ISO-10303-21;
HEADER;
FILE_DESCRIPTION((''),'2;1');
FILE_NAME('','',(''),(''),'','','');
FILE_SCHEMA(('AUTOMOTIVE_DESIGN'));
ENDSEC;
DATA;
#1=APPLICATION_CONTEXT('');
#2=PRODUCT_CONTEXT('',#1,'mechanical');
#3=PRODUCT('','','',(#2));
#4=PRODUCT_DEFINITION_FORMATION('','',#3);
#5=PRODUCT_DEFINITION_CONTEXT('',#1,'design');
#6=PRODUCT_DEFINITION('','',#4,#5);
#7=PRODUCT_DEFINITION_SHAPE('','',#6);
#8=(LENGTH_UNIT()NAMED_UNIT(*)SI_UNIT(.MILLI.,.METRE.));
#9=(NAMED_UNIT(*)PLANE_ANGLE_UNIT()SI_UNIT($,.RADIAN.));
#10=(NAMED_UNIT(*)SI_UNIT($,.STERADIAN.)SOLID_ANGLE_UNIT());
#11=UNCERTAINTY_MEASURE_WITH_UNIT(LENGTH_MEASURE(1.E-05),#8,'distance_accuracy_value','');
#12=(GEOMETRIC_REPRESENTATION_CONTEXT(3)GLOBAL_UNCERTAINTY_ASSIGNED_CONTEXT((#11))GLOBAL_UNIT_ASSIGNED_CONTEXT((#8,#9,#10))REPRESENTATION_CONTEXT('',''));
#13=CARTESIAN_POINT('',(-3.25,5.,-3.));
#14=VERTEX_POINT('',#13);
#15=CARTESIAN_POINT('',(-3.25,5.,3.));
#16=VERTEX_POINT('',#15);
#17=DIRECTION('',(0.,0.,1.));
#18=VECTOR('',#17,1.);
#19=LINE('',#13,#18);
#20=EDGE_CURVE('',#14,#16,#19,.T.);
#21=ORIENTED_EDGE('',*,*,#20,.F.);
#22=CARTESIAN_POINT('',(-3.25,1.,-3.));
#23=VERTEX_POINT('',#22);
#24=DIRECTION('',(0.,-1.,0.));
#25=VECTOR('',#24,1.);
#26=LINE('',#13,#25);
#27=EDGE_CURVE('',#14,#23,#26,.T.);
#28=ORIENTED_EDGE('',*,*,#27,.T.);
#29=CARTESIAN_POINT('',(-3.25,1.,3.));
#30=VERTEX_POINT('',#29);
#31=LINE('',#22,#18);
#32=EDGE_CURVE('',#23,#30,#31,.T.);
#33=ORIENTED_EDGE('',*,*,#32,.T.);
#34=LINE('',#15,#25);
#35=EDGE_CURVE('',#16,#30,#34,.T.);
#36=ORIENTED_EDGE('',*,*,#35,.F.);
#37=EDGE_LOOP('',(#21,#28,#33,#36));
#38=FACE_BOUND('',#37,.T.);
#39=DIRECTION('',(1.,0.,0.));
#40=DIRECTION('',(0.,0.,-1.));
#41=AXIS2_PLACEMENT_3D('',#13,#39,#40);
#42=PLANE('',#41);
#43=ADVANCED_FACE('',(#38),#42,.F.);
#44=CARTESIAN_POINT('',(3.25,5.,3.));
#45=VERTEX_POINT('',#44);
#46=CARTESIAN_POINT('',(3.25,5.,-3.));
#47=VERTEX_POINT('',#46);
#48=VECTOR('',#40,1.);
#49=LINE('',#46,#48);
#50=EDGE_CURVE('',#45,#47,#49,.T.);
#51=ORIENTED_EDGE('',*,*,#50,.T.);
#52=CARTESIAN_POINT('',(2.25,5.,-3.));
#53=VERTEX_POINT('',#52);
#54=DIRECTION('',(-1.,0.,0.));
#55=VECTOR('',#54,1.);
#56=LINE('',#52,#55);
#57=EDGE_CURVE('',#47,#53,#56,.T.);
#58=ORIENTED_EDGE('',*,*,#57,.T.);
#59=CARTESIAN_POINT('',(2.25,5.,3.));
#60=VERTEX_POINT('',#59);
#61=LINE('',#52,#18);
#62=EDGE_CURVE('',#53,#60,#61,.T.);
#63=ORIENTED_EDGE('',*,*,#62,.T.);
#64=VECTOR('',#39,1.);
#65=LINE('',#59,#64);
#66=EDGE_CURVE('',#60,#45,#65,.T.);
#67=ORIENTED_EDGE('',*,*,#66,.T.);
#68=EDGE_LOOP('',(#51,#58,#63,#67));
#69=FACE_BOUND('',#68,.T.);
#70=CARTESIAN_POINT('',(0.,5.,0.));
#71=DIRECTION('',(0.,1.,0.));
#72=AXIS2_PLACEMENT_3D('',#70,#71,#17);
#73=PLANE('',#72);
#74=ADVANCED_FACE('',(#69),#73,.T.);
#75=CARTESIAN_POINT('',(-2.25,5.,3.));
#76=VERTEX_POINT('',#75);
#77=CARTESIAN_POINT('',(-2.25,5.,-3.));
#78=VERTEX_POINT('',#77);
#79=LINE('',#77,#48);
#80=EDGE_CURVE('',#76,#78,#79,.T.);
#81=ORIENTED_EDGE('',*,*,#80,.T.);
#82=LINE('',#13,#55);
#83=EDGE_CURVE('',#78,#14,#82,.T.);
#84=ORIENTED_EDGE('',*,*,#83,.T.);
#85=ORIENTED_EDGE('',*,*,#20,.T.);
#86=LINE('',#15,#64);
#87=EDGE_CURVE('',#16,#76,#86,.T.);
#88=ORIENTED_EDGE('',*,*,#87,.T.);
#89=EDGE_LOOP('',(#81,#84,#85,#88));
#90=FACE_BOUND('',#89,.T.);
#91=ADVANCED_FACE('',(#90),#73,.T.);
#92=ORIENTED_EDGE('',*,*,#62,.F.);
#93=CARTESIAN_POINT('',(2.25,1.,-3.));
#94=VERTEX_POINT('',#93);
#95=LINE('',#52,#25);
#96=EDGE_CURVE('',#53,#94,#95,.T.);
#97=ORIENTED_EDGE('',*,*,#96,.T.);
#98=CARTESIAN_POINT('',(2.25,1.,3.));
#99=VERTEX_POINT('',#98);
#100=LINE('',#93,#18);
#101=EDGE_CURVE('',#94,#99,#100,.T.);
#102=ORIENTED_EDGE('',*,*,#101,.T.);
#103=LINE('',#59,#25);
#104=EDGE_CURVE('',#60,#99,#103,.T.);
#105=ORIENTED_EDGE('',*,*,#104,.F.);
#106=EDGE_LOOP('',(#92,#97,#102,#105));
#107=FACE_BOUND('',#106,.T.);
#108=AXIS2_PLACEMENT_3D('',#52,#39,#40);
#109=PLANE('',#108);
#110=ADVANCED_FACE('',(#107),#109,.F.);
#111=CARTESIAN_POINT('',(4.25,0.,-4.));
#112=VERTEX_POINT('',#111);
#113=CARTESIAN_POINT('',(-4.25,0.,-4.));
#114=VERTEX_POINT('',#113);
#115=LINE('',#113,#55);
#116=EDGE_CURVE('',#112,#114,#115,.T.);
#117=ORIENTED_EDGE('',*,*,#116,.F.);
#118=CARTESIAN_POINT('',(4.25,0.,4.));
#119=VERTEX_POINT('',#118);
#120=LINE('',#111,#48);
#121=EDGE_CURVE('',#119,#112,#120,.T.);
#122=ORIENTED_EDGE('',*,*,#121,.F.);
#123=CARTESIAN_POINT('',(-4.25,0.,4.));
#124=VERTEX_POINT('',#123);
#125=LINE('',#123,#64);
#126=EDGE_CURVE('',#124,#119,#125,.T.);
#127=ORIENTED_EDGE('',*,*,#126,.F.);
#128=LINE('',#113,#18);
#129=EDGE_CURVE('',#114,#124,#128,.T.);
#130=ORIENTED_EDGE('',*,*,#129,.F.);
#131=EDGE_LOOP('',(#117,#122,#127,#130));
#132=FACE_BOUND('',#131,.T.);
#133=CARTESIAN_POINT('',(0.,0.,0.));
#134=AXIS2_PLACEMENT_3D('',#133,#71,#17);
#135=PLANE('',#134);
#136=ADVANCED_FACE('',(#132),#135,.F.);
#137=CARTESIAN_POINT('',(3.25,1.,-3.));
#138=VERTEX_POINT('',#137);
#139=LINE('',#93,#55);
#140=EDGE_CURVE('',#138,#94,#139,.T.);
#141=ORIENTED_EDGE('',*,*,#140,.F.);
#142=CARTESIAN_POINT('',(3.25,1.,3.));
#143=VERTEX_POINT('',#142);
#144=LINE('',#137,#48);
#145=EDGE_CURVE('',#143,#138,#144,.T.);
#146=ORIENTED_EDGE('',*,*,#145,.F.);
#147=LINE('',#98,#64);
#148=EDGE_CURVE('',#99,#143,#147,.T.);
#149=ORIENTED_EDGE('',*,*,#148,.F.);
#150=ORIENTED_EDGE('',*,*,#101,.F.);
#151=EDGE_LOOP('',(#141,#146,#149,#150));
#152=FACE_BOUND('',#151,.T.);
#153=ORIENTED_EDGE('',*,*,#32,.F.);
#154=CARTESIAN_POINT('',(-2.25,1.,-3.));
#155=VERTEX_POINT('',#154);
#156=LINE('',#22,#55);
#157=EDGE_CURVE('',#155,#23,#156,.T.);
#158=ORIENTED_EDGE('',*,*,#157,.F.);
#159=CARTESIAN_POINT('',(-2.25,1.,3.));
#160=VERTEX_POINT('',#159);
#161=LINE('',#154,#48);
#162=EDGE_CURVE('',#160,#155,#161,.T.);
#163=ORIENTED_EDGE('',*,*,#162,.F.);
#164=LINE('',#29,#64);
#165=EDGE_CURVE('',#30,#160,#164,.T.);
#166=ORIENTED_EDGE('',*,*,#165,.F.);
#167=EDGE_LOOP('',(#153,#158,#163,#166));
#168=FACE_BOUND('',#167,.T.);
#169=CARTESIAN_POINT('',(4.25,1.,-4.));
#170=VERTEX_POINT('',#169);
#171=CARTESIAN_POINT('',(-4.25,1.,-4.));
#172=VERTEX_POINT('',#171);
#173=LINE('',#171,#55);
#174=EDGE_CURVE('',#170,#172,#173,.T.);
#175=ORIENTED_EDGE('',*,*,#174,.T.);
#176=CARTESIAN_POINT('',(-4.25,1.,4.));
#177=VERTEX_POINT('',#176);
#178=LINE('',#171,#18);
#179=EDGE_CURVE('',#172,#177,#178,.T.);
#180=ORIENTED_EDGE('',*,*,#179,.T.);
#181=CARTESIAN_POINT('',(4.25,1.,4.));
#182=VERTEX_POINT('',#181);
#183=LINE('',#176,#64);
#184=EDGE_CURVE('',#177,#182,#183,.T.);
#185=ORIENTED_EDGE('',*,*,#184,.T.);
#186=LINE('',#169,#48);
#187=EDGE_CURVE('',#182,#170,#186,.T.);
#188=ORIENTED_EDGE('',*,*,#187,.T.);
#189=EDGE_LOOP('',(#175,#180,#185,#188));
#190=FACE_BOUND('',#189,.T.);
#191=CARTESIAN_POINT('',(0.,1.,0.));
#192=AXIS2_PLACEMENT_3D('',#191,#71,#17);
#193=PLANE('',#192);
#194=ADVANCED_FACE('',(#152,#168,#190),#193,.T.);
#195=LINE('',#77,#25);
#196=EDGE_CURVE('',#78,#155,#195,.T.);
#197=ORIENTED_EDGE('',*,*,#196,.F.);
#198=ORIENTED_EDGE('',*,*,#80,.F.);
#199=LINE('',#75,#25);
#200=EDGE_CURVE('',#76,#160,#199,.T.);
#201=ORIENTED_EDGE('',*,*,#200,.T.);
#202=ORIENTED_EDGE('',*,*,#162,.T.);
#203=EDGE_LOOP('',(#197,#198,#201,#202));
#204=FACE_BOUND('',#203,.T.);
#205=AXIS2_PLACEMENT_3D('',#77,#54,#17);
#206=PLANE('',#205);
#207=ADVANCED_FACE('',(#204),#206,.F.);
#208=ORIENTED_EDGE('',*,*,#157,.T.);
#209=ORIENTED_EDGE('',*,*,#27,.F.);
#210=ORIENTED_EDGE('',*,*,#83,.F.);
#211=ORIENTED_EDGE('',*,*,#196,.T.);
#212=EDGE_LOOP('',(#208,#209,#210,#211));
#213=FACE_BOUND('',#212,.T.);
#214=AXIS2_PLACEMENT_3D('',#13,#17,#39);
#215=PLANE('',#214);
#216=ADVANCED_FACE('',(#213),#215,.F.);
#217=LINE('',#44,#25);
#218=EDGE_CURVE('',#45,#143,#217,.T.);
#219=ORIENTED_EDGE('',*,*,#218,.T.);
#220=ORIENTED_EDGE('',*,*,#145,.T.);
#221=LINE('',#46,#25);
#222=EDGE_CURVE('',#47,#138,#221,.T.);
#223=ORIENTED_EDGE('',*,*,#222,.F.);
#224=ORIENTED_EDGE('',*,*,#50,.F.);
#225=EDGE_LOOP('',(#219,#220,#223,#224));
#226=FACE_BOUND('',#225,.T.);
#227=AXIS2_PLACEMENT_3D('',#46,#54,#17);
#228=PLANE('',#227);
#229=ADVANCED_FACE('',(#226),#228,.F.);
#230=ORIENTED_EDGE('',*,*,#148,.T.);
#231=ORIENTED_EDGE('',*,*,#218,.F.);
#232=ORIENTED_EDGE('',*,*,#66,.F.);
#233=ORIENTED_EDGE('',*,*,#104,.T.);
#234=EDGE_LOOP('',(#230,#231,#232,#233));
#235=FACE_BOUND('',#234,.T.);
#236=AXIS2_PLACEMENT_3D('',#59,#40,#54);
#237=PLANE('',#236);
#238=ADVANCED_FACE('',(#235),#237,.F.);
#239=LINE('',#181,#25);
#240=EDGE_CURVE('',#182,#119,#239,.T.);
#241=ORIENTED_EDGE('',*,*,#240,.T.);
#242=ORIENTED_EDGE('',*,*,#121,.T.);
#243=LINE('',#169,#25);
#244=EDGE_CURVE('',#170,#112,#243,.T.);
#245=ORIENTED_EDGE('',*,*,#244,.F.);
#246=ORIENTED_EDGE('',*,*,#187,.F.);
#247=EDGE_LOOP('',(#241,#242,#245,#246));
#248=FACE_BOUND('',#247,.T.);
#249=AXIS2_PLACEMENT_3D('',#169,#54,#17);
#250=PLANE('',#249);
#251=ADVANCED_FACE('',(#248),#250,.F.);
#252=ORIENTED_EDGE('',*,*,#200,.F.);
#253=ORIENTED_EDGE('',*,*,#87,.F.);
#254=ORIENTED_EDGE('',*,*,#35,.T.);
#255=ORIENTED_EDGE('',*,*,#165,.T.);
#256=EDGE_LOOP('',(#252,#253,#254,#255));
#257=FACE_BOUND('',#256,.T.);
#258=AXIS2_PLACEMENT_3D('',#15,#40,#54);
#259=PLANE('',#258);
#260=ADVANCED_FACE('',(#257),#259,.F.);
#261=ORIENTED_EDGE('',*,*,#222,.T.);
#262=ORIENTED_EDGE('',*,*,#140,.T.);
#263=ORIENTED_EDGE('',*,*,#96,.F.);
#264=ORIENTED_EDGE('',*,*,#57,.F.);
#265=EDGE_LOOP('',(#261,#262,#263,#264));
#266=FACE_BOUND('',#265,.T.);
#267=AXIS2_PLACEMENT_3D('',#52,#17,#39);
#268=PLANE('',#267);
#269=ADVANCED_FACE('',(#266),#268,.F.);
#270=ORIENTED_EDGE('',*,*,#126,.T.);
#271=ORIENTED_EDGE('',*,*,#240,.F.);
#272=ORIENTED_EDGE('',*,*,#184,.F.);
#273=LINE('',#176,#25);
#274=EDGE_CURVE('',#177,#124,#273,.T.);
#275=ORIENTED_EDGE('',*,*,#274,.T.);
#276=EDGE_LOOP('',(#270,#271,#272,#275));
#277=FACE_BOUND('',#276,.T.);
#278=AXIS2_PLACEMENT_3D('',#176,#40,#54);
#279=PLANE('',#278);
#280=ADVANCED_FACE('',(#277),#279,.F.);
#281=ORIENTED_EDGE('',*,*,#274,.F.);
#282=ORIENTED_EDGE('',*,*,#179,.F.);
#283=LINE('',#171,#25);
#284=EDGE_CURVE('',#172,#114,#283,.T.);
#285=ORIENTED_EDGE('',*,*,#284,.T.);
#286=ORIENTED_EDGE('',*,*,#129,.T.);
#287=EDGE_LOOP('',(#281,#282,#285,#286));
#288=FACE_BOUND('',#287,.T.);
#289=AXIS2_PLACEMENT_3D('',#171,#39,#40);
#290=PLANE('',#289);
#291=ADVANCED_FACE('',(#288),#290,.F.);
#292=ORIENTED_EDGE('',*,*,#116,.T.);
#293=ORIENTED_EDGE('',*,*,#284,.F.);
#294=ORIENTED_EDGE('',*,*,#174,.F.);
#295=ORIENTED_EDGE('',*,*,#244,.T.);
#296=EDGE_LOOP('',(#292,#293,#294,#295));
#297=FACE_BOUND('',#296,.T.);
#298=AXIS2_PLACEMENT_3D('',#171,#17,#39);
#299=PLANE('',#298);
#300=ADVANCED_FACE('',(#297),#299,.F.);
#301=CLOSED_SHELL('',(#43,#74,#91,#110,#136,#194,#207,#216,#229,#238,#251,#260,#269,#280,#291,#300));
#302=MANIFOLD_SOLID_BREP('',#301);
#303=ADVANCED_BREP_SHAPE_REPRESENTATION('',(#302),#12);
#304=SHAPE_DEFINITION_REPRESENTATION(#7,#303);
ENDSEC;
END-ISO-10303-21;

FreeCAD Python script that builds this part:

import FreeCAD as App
import Part
import Sketcher

V = App.Vector
Q = App.Units.Quantity

doc = App.newDocument("Part")
body = doc.addObject("PartDesign::Body", "Body")

# Sketch on XZ plane
sketch1 = doc.addObject("Sketcher::SketchObject", "Sketch")
body.addObject(sketch1)
sketch1.AttachmentSupport = (doc.XZ_Plane, [""])
sketch1.MapMode = "FlatFace"
sketch1.addGeometry(Part.LineSegment(V(-4, -4, 0), V(-4, 4, 0)), False)
sketch1.addGeometry(Part.LineSegment(V(-4, 4, 0), V(4, 4, 0)), False)
sketch1.addGeometry(Part.LineSegment(V(4, 4, 0), V(4, -4, 0)), False)
sketch1.addGeometry(Part.LineSegment(V(4, -4, 0), V(-4, -4, 0)), False)
sketch1.addConstraint(Sketcher.Constraint("Coincident", 0, 2, 1, 1))
sketch1.addConstraint(Sketcher.Constraint("Coincident", 1, 2, 2, 1))
sketch1.addConstraint(Sketcher.Constraint("Coincident", 2, 2, 3, 1))
sketch1.addConstraint(Sketcher.Constraint("Coincident", 3, 2, 0, 1))
sketch1.addConstraint(Sketcher.Constraint("Vertical", 0))
sketch1.addConstraint(Sketcher.Constraint("Horizontal", 1))
sketch1.addConstraint(Sketcher.Constraint("Vertical", 2))
sketch1.addConstraint(Sketcher.Constraint("Horizontal", 3))
sketch1.addConstraint(Sketcher.Constraint("Symmetric", 0, 2, 2, 2, -1, 1))
sketch1.addConstraint(Sketcher.Constraint("DistanceY", 0, 1, 0, 2, Q("8 mm")))
sketch1.addConstraint(Sketcher.Constraint("DistanceX", 1, 1, 1, 2, Q("8.5 mm")))
pad1 = doc.addObject("PartDesign::Pad", "Pad")
body.addObject(pad1)
pad1.Profile = sketch1
pad1.Length = 1
pad1.Reversed = True

# Sketch on XZ plane
sketch2 = doc.addObject("Sketcher::SketchObject", "Sketch001")
body.addObject(sketch2)
sketch2.AttachmentSupport = (doc.XZ_Plane, [""])
sketch2.MapMode = "FlatFace"
sketch2.AttachmentOffset = App.Placement(V(0, 0, -1), App.Rotation())
sketch2.addGeometry(Part.LineSegment(V(-3.2, -3, 0), V(-3.2, 3, 0)), False)
sketch2.addGeometry(Part.LineSegment(V(-3.2, 3, 0), V(-2.2, 3, 0)), False)
sketch2.addGeometry(Part.LineSegment(V(-2.2, 3, 0), V(-2.2, -3, 0)), False)
sketch2.addGeometry(Part.LineSegment(V(-2.2, -3, 0), V(-3.2, -3, 0)), False)
sketch2.addGeometry(Part.LineSegment(V(2.2, -3, 0), V(2.2, 3, 0)), False)
sketch2.addGeometry(Part.LineSegment(V(2.2, 3, 0), V(3.2, 3, 0)), False)
sketch2.addGeometry(Part.LineSegment(V(3.2, 3, 0), V(3.2, -3, 0)), False)
sketch2.addGeometry(Part.LineSegment(V(3.2, -3, 0), V(2.2, -3, 0)), False)
sketch2.addConstraint(Sketcher.Constraint("Coincident", 0, 2, 1, 1))
sketch2.addConstraint(Sketcher.Constraint("Coincident", 1, 2, 2, 1))
sketch2.addConstraint(Sketcher.Constraint("Coincident", 2, 2, 3, 1))
sketch2.addConstraint(Sketcher.Constraint("Coincident", 3, 2, 0, 1))
sketch2.addConstraint(Sketcher.Constraint("Coincident", 4, 2, 5, 1))
sketch2.addConstraint(Sketcher.Constraint("Coincident", 5, 2, 6, 1))
sketch2.addConstraint(Sketcher.Constraint("Coincident", 6, 2, 7, 1))
sketch2.addConstraint(Sketcher.Constraint("Coincident", 7, 2, 4, 1))
sketch2.addConstraint(Sketcher.Constraint("Vertical", 0))
sketch2.addConstraint(Sketcher.Constraint("Horizontal", 1))
sketch2.addConstraint(Sketcher.Constraint("Vertical", 2))
sketch2.addConstraint(Sketcher.Constraint("Horizontal", 3))
sketch2.addConstraint(Sketcher.Constraint("Vertical", 4))
sketch2.addConstraint(Sketcher.Constraint("Horizontal", 5))
sketch2.addConstraint(Sketcher.Constraint("Vertical", 6))
sketch2.addConstraint(Sketcher.Constraint("Horizontal", 7))
sketch2.addConstraint(Sketcher.Constraint("Symmetric", 2, 2, 4, 2, -1, 1))
sketch2.addConstraint(Sketcher.Constraint("Symmetric", 0, 2, 6, 2, -1, 1))
sketch2.addConstraint(Sketcher.Constraint("Horizontal", 1, 2, 4, 2))
sketch2.addConstraint(Sketcher.Constraint("DistanceX", 1, 1, 1, 2, Q("1 mm")))
sketch2.addConstraint(Sketcher.Constraint("DistanceY", 0, 1, 0, 2, Q("6 mm")))
sketch2.addConstraint(Sketcher.Constraint("DistanceX", 1, 2, 4, 2, Q("4.5 mm")))
pad2 = doc.addObject("PartDesign::Pad", "Pad001")
body.addObject(pad2)
pad2.Profile = sketch2
pad2.Length = 4
pad2.Reversed = True

doc.recompute()
